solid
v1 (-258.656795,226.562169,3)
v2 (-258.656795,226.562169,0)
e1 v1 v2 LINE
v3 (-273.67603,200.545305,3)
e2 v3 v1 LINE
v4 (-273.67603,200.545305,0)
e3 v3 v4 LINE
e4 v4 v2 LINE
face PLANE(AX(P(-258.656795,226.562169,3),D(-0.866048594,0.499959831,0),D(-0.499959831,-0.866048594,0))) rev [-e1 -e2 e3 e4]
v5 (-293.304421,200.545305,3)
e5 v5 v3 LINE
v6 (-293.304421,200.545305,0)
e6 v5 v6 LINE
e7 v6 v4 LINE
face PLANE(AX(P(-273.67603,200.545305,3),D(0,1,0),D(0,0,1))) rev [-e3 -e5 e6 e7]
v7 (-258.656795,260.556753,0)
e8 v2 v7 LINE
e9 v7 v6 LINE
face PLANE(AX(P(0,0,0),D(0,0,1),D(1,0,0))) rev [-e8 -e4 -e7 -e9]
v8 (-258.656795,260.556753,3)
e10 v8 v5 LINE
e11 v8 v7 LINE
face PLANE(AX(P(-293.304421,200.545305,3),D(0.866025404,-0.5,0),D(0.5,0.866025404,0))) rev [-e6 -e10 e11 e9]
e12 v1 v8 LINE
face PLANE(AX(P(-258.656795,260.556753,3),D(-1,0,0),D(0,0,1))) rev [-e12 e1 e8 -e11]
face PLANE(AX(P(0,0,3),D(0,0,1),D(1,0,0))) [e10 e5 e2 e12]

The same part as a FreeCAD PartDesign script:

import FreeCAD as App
import Part
import Sketcher
from FreeCAD import Vector
Q = App.Units.Quantity

doc = App.newDocument("Part")
params = doc.addObject("Spreadsheet::Sheet", "Params")
for row, (alias, value) in enumerate([
    ("pad1_length", "3 mm"),
], start=1):
    params.set(f"A{row}", alias)
    params.set(f"B{row}", "=" + value)
    params.setAlias(f"B{row}", alias)

body = doc.addObject("PartDesign::Body", "Body")

sketch1 = body.newObject("Sketcher::SketchObject", "Sketch")
sketch1.AttachmentSupport = (doc.getObject("XY_Plane"), [""])
sketch1.MapMode = "FlatFace"
sketch1.addGeometry(Part.LineSegment(Vector(-258.656795, 226.562169, 0), Vector(-258.656795, 260.556753, 0)), False)
sketch1.addGeometry(Part.LineSegment(Vector(-258.656795, 260.556753, 0), Vector(-293.304421, 200.545305, 0)), False)
sketch1.addGeometry(Part.LineSegment(Vector(-293.304421, 200.545305, 0), Vector(-273.67603, 200.545305, 0)), False)
sketch1.addGeometry(Part.LineSegment(Vector(-273.67603, 200.545305, 0), Vector(-258.656795, 226.562169, 0)), False)
sketch1.addConstraint(Sketcher.Constraint("Coincident", 0, 2, 1, 1))
sketch1.addConstraint(Sketcher.Constraint("Coincident", 1, 2, 2, 1))
sketch1.addConstraint(Sketcher.Constraint("Coincident", 2, 2, 3, 1))
sketch1.addConstraint(Sketcher.Constraint("Coincident", 3, 2, 0, 1))
sketch1.addConstraint(Sketcher.Constraint("Vertical", 0))
sketch1.addConstraint(Sketcher.Constraint("Horizontal", 2))
sketch1.addConstraint(Sketcher.Constraint("Angle", 1, Q("-120 deg")))
sketch1.addConstraint(Sketcher.Constraint("DistanceX", 2, 1, 2, 2, 19.628391))
sketch1.addConstraint(Sketcher.Constraint("Distance", 1, 69.295251))
sketch1.addConstraint(Sketcher.Constraint("DistanceY", 0, 1, 0, 2, 33.994584))
sketch1.addConstraint(Sketcher.Constraint("DistanceX", 1, 2, -1, 1, 293.304421))
sketch1.addConstraint(Sketcher.Constraint("DistanceY", -1, 1, 3, 2, 226.562169))
pad1 = body.newObject("PartDesign::Pad", "Pad")
pad1.Profile = sketch1
pad1.setExpression("Length", "Params.pad1_length")

doc.recompute()
